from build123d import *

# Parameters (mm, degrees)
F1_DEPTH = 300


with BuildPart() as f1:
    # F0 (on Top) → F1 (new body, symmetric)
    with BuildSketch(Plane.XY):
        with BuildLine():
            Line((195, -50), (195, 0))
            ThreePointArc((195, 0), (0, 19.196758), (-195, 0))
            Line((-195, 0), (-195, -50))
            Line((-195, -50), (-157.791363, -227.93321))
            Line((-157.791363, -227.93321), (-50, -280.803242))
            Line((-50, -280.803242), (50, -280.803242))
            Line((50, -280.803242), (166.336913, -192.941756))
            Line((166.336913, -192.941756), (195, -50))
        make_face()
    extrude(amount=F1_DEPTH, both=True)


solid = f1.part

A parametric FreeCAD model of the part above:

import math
import FreeCAD as App
import Part
import Sketcher
from FreeCAD import Vector
Q = App.Units.Quantity

doc = App.newDocument("Part")
body = doc.addObject("PartDesign::Body", "Body")

# Sketch on XY plane
sketch1 = body.newObject("Sketcher::SketchObject", "Sketch")
sketch1.AttachmentSupport = (doc.getObject("XY_Plane"), [""])
sketch1.MapMode = "FlatFace"
sketch1.addGeometry([
    Part.LineSegment(Vector(195, -50, 0), Vector(195, 0, 0)),  # 0
    Part.ArcOfCircle(Part.Circle(Vector(0, -981, 0), Vector(0, 0, 1), 1000), math.radians(79), math.radians(101)),  # 1
    Part.LineSegment(Vector(-195, 0, 0), Vector(-195, -50, 0)),  # 2
    Part.LineSegment(Vector(-195, -50, 0), Vector(-158, -228, 0)),  # 3
    Part.LineSegment(Vector(-158, -228, 0), Vector(-50, -281, 0)),  # 4
    Part.LineSegment(Vector(-50, -281, 0), Vector(50, -281, 0)),  # 5
    Part.LineSegment(Vector(50, -281, 0), Vector(166, -193, 0)),  # 6
    Part.LineSegment(Vector(166, -193, 0), Vector(195, -50, 0)),  # 7
], False)
sketch1.addConstraint([
    Sketcher.Constraint("Coincident", 0, 2, 1, 1),
    Sketcher.Constraint("Coincident", 1, 2, 2, 1),
    Sketcher.Constraint("Coincident", 2, 2, 3, 1),
    Sketcher.Constraint("Coincident", 3, 2, 4, 1),
    Sketcher.Constraint("Coincident", 4, 2, 5, 1),
    Sketcher.Constraint("Coincident", 5, 2, 6, 1),
    Sketcher.Constraint("Coincident", 6, 2, 7, 1),
    Sketcher.Constraint("Coincident", 7, 2, 0, 1),
    Sketcher.Constraint("Vertical", 0),
    Sketcher.Constraint("Vertical", 2),
    Sketcher.Constraint("Horizontal", 5),
    Sketcher.Constraint("Symmetric", 2, 2, 7, 2, -2),
    Sketcher.Constraint("PointOnObject", 1, 3, -2),
    Sketcher.Constraint("PointOnObject", 0, 2, -1),
    Sketcher.Constraint("Equal", 6, 7),
    Sketcher.Constraint("DistanceX", 5, 1, 5, 2, Q("100 mm")),
    Sketcher.Constraint("DistanceY", 0, 1, 0, 2, Q("50 mm")),
    Sketcher.Constraint("DistanceX", -1, 1, 0, 2, Q("195 mm")),
    Sketcher.Constraint("DistanceX", 4, 2, -1, 1, Q("50 mm")),
    Sketcher.Constraint("Radius", 1, Q("999.999987 mm")),
    Sketcher.Constraint("Distance", 3, Q("181.78204 mm")),
    Sketcher.Constraint("DistanceY", 3, 2, -1, 1, Q("227.93321 mm")),
    Sketcher.Constraint("DistanceY", 4, 2, -1, 1, Q("280.803242 mm")),
    Sketcher.Constraint("Distance", 6, Q("145.787236 mm")),
])
pad1 = body.newObject("PartDesign::Pad", "Pad")
pad1.Profile = sketch1
pad1.Length = 600
pad1.Midplane = True

doc.recompute()
